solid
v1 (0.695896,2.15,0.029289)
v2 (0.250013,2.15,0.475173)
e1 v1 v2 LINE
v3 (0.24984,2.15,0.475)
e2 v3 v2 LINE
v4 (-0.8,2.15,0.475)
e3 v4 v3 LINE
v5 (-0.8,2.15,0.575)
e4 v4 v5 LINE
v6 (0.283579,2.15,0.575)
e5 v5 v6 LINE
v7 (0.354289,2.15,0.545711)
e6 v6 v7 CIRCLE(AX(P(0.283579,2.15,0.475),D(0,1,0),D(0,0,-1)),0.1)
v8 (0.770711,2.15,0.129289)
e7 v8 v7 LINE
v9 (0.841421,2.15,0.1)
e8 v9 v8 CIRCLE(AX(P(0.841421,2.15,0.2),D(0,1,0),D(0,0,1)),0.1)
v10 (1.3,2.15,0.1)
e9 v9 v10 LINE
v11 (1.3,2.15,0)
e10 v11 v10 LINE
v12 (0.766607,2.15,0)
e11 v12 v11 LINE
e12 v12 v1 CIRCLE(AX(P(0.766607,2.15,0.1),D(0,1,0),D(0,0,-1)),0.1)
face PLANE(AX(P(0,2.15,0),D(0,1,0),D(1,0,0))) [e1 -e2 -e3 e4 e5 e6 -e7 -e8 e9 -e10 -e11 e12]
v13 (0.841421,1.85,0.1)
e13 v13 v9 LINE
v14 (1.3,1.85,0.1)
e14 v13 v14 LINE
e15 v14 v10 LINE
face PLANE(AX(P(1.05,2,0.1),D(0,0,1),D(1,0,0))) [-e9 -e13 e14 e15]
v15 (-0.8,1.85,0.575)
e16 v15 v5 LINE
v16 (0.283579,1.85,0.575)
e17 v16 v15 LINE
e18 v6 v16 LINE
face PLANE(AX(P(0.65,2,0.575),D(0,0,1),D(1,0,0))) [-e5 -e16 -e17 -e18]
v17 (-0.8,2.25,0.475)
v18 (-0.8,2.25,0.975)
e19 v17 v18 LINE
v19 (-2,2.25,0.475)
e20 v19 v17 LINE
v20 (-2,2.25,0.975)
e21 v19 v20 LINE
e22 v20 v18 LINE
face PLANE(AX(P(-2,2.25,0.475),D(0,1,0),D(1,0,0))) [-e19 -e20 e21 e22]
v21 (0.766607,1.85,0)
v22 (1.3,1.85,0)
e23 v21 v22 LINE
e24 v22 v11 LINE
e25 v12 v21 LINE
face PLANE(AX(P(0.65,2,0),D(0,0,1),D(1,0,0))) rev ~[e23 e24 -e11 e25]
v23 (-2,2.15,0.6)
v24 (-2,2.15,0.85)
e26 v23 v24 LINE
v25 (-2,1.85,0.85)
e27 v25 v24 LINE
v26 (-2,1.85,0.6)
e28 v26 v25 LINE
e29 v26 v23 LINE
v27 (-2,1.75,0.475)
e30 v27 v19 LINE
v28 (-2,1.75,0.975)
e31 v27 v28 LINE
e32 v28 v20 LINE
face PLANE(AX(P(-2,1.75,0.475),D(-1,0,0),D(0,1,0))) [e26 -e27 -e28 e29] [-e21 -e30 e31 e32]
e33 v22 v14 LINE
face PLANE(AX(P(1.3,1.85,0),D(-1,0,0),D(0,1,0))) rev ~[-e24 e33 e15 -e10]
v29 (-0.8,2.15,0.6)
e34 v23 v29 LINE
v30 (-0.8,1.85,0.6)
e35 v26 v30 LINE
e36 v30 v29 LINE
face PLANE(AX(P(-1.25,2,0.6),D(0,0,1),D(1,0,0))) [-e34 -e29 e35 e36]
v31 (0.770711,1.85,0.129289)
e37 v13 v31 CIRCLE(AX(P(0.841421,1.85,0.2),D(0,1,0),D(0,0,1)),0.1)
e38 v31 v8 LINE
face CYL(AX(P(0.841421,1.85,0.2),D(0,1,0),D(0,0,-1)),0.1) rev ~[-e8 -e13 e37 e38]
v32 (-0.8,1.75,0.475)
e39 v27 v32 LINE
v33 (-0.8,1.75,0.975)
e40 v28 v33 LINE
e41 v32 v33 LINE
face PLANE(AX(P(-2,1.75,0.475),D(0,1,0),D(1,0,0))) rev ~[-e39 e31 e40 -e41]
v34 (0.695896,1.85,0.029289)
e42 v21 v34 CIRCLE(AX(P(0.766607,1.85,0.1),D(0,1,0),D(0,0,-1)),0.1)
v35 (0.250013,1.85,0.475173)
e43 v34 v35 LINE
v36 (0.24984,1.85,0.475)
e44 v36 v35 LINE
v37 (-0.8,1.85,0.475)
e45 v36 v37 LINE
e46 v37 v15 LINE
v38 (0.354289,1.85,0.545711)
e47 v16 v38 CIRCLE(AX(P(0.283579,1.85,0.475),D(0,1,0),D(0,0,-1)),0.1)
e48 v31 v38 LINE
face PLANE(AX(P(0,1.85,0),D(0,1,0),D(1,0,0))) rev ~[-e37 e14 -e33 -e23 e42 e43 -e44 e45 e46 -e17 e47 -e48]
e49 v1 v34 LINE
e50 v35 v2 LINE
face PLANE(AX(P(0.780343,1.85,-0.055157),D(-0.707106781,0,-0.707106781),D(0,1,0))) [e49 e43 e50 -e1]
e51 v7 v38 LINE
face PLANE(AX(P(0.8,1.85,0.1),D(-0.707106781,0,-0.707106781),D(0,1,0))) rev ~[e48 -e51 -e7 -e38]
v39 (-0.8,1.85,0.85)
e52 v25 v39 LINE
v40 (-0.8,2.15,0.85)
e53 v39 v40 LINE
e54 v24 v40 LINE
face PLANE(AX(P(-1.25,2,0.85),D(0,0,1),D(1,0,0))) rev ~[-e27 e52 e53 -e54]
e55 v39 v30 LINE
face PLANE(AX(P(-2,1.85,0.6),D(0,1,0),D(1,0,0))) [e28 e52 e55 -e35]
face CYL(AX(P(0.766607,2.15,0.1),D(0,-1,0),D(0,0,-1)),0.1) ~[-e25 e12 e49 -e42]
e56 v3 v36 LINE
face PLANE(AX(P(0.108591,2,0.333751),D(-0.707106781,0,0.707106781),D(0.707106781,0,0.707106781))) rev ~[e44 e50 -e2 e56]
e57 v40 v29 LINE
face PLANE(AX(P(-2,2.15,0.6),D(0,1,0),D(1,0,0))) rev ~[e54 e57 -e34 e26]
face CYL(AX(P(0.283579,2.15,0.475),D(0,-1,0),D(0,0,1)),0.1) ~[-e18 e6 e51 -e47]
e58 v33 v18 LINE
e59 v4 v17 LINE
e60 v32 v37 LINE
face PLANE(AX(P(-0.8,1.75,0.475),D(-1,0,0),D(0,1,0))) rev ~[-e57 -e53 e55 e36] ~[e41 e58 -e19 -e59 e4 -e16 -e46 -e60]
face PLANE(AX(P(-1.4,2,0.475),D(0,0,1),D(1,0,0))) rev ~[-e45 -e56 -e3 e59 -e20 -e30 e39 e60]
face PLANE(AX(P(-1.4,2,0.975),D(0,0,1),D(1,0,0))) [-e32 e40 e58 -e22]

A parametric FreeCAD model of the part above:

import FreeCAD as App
import Part
import Sketcher


def edges_at(feature, points):
    """Names of the edges that pass closest to the given points."""
    edges = feature.Shape.Edges
    near = lambda p: min(range(len(edges)), key=lambda i: edges[i].distToShape(Part.Vertex(*p))[0])
    return sorted({f"Edge{near(p) + 1}" for p in points})


def add_polygon(sketch, points):
    """Adds a closed chain of lines whose ends are joined by coincident constraints."""
    first, n = sketch.GeometryCount, len(points)
    for a, b in zip(points, points[1:] + points[:1]):
        sketch.addGeometry(Part.LineSegment(App.Vector(*a, 0), App.Vector(*b, 0)), False)
    for i in range(n):
        sketch.addConstraint(Sketcher.Constraint("Coincident", first + i, 2, first + (i + 1) % n, 1))

doc = App.newDocument("Part")
body = doc.addObject("PartDesign::Body", "Body")

sketch1 = body.newObject("Sketcher::SketchObject", "Sketch")
sketch1.AttachmentSupport = (doc.getObject("XY_Plane"), [""])
sketch1.MapMode = "FlatFace"
sketch1.AttachmentOffset = App.Placement(App.Vector(0, 0, 0.475), App.Rotation())
add_polygon(sketch1, [(-2, 4.8), (-2, 4.2), (-0.8, 4.2), (-0.8, 4.8)])
sketch1.addConstraint(Sketcher.Constraint("Vertical", 0))
sketch1.addConstraint(Sketcher.Constraint("Horizontal", 1))
sketch1.addConstraint(Sketcher.Constraint("Vertical", 2))
sketch1.addConstraint(Sketcher.Constraint("Horizontal", 3))
sketch1.addConstraint(Sketcher.Constraint("DistanceX", 1, 1, 1, 2, 1.2))
sketch1.addConstraint(Sketcher.Constraint("DistanceY", 0, 2, 0, 1, 0.5))
sketch1.addConstraint(Sketcher.Constraint("DistanceX", 0, 2, -1, 1, 2.0))
sketch1.addConstraint(Sketcher.Constraint("DistanceY", -1, 1, 0, 2, 4.25))
pad1 = body.newObject("PartDesign::Pad", "Pad")
pad1.Profile = sketch1
pad1.Length = 0.5

sketch2 = body.newObject("Sketcher::SketchObject", "Sketch001")
sketch2.AttachmentSupport = (doc.getObject("XY_Plane"), [""])
sketch2.MapMode = "FlatFace"
sketch2.AttachmentOffset = App.Placement(App.Vector(0, 0, 0.475), App.Rotation())
add_polygon(sketch2, [(-0.8, 4.65), (-0.8, 4.35), (0.7, 4.35), (0.7, 4.65)])
sketch2.addConstraint(Sketcher.Constraint("Vertical", 0))
sketch2.addConstraint(Sketcher.Constraint("Horizontal", 1))
sketch2.addConstraint(Sketcher.Constraint("Vertical", 2))
sketch2.addConstraint(Sketcher.Constraint("Horizontal", 3))
sketch2.addConstraint(Sketcher.Constraint("DistanceX", 1, 1, 1, 2, 1.5))
sketch2.addConstraint(Sketcher.Constraint("DistanceY", 0, 2, 0, 1, 0.3))
sketch2.addConstraint(Sketcher.Constraint("DistanceX", 0, 2, -1, 1, 0.8))
sketch2.addConstraint(Sketcher.Constraint("DistanceY", -1, 1, 0, 2, 4.35))
pad2 = body.newObject("PartDesign::Pad", "Pad001")
pad2.Profile = sketch2
pad2.Length = 0.1

sketch3 = body.newObject("Sketcher::SketchObject", "Sketch002")
sketch3.AttachmentSupport = (doc.getObject("XY_Plane"), [""])
sketch3.MapMode = "FlatFace"
add_polygon(sketch3, [(0, 4.65), (0, 4.35), (1.3, 4.35), (1.3, 4.65)])
sketch3.addConstraint(Sketcher.Constraint("Vertical", 0))
sketch3.addConstraint(Sketcher.Constraint("Horizontal", 1))
sketch3.addConstraint(Sketcher.Constraint("Vertical", 2))
sketch3.addConstraint(Sketcher.Constraint("Horizontal", 3))
sketch3.addConstraint(Sketcher.Constraint("PointOnObject", 0, 2, -2))
sketch3.addConstraint(Sketcher.Constraint("DistanceX", 1, 1, 1, 2, 1.3))
sketch3.addConstraint(Sketcher.Constraint("DistanceY", 0, 2, 0, 1, 0.3))
sketch3.addConstraint(Sketcher.Constraint("DistanceY", -1, 1, 0, 2, 4.35))
pad3 = body.newObject("PartDesign::Pad", "Pad002")
pad3.Profile = sketch3
pad3.Length = 0.575

sketch4 = body.newObject("Sketcher::SketchObject", "Sketch003")
sketch4.AttachmentSupport = (doc.getObject("XY_Plane"), [""])
sketch4.MapMode = "FlatFace"
add_polygon(sketch4, [(0, 4.65), (0, 4.35), (0.25, 4.35), (0.25, 4.65)])
sketch4.addConstraint(Sketcher.Constraint("Vertical", 0))
sketch4.addConstraint(Sketcher.Constraint("Horizontal", 1))
sketch4.addConstraint(Sketcher.Constraint("Vertical", 2))
sketch4.addConstraint(Sketcher.Constraint("Horizontal", 3))
sketch4.addConstraint(Sketcher.Constraint("PointOnObject", 0, 2, -2))
sketch4.addConstraint(Sketcher.Constraint("DistanceY", 0, 2, 0, 1, 0.3))
sketch4.addConstraint(Sketcher.Constraint("DistanceX", 1, 1, 1, 2, 0.25))
sketch4.addConstraint(Sketcher.Constraint("DistanceY", -1, 1, 0, 2, 4.35))
pocket1 = body.newObject("PartDesign::Pocket", "Pocket")
pocket1.Profile = sketch4
pocket1.Length = 0.475
pocket1.Reversed = True

sketch5 = body.newObject("Sketcher::SketchObject", "Sketch004")
sketch5.AttachmentSupport = (doc.getObject("XY_Plane"), [""])
sketch5.MapMode = "FlatFace"
sketch5.AttachmentOffset = App.Placement(App.Vector(0, 0, 0.1), App.Rotation())
add_polygon(sketch5, [(0.8, 4.65), (0.8, 4.35), (1.3, 4.35), (1.3, 4.65)])
sketch5.addConstraint(Sketcher.Constraint("Vertical", 0))
sketch5.addConstraint(Sketcher.Constraint("Horizontal", 1))
sketch5.addConstraint(Sketcher.Constraint("Vertical", 2))
sketch5.addConstraint(Sketcher.Constraint("Horizontal", 3))
sketch5.addConstraint(Sketcher.Constraint("DistanceX", 1, 1, 1, 2, 0.5))
sketch5.addConstraint(Sketcher.Constraint("DistanceY", 0, 2, 0, 1, 0.3))
sketch5.addConstraint(Sketcher.Constraint("DistanceX", -1, 1, 0, 2, 0.8))
sketch5.addConstraint(Sketcher.Constraint("DistanceY", -1, 1, 0, 2, 4.35))
pocket2 = body.newObject("PartDesign::Pocket", "Pocket001")
pocket2.Profile = sketch5
pocket2.Length = 0.5
pocket2.Reversed = True

sketch6 = body.newObject("Sketcher::SketchObject", "Sketch005")
sketch6.Placement = App.Placement(App.Vector(0.8, 4.35, 0.1), App.Rotation(App.Vector(0.707106781, 0, 0.707106781), App.Vector(0, 0.999999999, 0), App.Vector(-0.707106781, 0, 0.707106781), "ZXY"))
add_polygon(sketch6, [(0, 0.3), (0, 0), (0.5, 0), (0.5, 0.3)])
sketch6.addConstraint(Sketcher.Constraint("Vertical", 0))
sketch6.addConstraint(Sketcher.Constraint("Horizontal", 1))
sketch6.addConstraint(Sketcher.Constraint("Vertical", 2))
sketch6.addConstraint(Sketcher.Constraint("Horizontal", 3))
sketch6.addConstraint(Sketcher.Constraint("Coincident", 0, 2, -1, 1))
sketch6.addConstraint(Sketcher.Constraint("DistanceX", 1, 1, 1, 2, 0.5))
sketch6.addConstraint(Sketcher.Constraint("DistanceY", 0, 2, 0, 1, 0.3))
pocket3 = body.newObject("PartDesign::Pocket", "Pocket002")
pocket3.Profile = sketch6
pocket3.Length = 0.75
pocket3.Reversed = True

sketch7 = body.newObject("Sketcher::SketchObject", "Sketch006")
sketch7.Placement = App.Placement(App.Vector(0.4975, 4.35, -0.338), App.Rotation(App.Vector(0.707106781, 0, 0.707106781), App.Vector(0, 0.999999999, 0), App.Vector(-0.707106781, 0, 0.707106781), "ZXY"))
add_polygon(sketch7, [(0, 0.3), (0, 0), (0.4, 0), (0.4, 0.3)])
sketch7.addConstraint(Sketcher.Constraint("Vertical", 0))
sketch7.addConstraint(Sketcher.Constraint("Horizontal", 1))
sketch7.addConstraint(Sketcher.Constraint("Vertical", 2))
sketch7.addConstraint(Sketcher.Constraint("Horizontal", 3))
sketch7.addConstraint(Sketcher.Constraint("Coincident", 0, 2, -1, 1))
sketch7.addConstraint(Sketcher.Constraint("DistanceX", 1, 1, 1, 2, 0.4))
sketch7.addConstraint(Sketcher.Constraint("DistanceY", 0, 2, 0, 1, 0.3))
pocket4 = body.newObject("PartDesign::Pocket", "Pocket003")
pocket4.Profile = sketch7
pocket4.Length = 0.75
pocket4.Reversed = True
doc.recompute()

fillet = body.newObject("PartDesign::Fillet", "Fillet")
fillet.Base = (pocket4, edges_at(pocket4, [(0.325, 4.5, 0.575)]))
fillet.Radius = 0.1
doc.recompute()

fillet2 = body.newObject("PartDesign::Fillet", "Fillet001")
fillet2.Base = (fillet, edges_at(fillet, [(0.725, 4.5, 0)]))
fillet2.Radius = 0.1

sketch8 = body.newObject("Sketcher::SketchObject", "Sketch007")
sketch8.AttachmentSupport = (doc.getObject("XY_Plane"), [""])
sketch8.MapMode = "FlatFace"
sketch8.AttachmentOffset = App.Placement(App.Vector(0, 0, 0.6), App.Rotation())
add_polygon(sketch8, [(-2, 4.65), (-2, 4.35), (-0.5, 4.35), (-0.5, 4.65)])
sketch8.addConstraint(Sketcher.Constraint("Vertical", 0))
sketch8.addConstraint(Sketcher.Constraint("Horizontal", 1))
sketch8.addConstraint(Sketcher.Constraint("Vertical", 2))
sketch8.addConstraint(Sketcher.Constraint("Horizontal", 3))
sketch8.addConstraint(Sketcher.Constraint("DistanceX", 1, 1, 1, 2, 1.5))
sketch8.addConstraint(Sketcher.Constraint("DistanceY", 0, 2, 0, 1, 0.3))
sketch8.addConstraint(Sketcher.Constraint("DistanceX", 0, 2, -1, 1, 2.0))
sketch8.addConstraint(Sketcher.Constraint("DistanceY", -1, 1, 0, 2, 4.35))
pocket5 = body.newObject("PartDesign::Pocket", "Pocket004")
pocket5.Profile = sketch8
pocket5.Length = 0.25
pocket5.Reversed = True
doc.recompute()

fillet3 = body.newObject("PartDesign::Fillet", "Fillet002")
fillet3.Base = (pocket5, edges_at(pocket5, [(0.8, 4.5, 0.1)]))
fillet3.Radius = 0.1
body2 = doc.addObject("PartDesign::Body", "Body001")
doc.recompute()

body.Placement = App.Placement(App.Vector(0, -2.5, 0), App.Rotation(App.Vector(0, 0, 1), 0))
boolean = body2.newObject("PartDesign::Boolean", "Boolean")
boolean.Type = "Fuse"
boolean.addObjects([body])

doc.recompute()
